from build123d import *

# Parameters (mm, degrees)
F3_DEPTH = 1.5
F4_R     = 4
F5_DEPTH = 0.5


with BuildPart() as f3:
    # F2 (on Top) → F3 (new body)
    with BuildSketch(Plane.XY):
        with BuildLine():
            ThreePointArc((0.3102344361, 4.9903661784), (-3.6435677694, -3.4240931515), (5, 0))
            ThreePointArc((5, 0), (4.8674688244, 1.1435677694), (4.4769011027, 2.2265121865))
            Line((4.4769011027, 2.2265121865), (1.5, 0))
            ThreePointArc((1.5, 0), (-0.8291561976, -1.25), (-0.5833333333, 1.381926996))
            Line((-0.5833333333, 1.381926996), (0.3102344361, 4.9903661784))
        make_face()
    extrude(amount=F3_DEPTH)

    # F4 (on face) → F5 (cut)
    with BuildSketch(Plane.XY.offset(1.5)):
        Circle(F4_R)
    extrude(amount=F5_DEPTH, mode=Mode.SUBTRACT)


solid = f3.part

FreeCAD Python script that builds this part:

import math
import FreeCAD as App
import Part
import Sketcher
from FreeCAD import Vector
Q = App.Units.Quantity

doc = App.newDocument("Part")
body = doc.addObject("PartDesign::Body", "Body")

sketch1 = body.newObject("Sketcher::SketchObject", "Sketch")
sketch1.AttachmentSupport = (doc.getObject("XY_Plane"), [""])
sketch1.MapMode = "FlatFace"
sketch1.addGeometry([
    Part.ArcOfCircle(Part.Circle(Vector(0, 0, 0), Vector(0, 0, 1), 5), math.radians(86), math.radians(360)),
    Part.ArcOfCircle(Part.Circle(Vector(0, 0, 0), Vector(0, 0, 1), 5), math.radians(0), math.radians(26)),
    Part.LineSegment(Vector(4.5, 2.2, 0), Vector(1.5, 0, 0)),
    Part.ArcOfCircle(Part.Circle(Vector(0, 0, 0), Vector(0, 0, 1), 1.5), math.radians(113), math.radians(360)),
    Part.LineSegment(Vector(-0.6, 1.4, 0), Vector(0.3, 5, 0)),
], False)
sketch1.addConstraint([
    Sketcher.Constraint("Tangent", 0, 2, 1, 1),
    Sketcher.Constraint("Coincident", 1, 2, 2, 1),
    Sketcher.Constraint("Coincident", 2, 2, 3, 2),
    Sketcher.Constraint("Coincident", 3, 1, 4, 1),
    Sketcher.Constraint("Coincident", 4, 2, 0, 1),
    Sketcher.Constraint("Coincident", 0, 3, -1, 1),
    Sketcher.Constraint("Coincident", 3, 3, -1, 1),
    Sketcher.Constraint("Equal", 0, 1),
    Sketcher.Constraint("PointOnObject", 0, 2, -1),
    Sketcher.Constraint("PointOnObject", 2, 2, -1),
    Sketcher.Constraint("Equal", 2, 4),
    Sketcher.Constraint("Radius", 0, Q("5 mm")),
    Sketcher.Constraint("Radius", 3, Q("1.5 mm")),
    Sketcher.Constraint("DistanceX", -1, 1, 1, 2, Q("4.476901 mm")),
    Sketcher.Constraint("DistanceY", 3, 1, 4, 2, Q("3.608439 mm")),
])
pad1 = body.newObject("PartDesign::Pad", "Pad")
pad1.Profile = sketch1
pad1.Length = 1.5

sketch2 = body.newObject("Sketcher::SketchObject", "Sketch001")
sketch2.AttachmentSupport = (doc.getObject("XY_Plane"), [""])
sketch2.MapMode = "FlatFace"
sketch2.AttachmentOffset = App.Placement(Vector(0, 0, 1.5), App.Rotation())
sketch2.addGeometry(Part.Circle(Vector(0, 0, 0), Vector(0, 0, 1), 4), False)
sketch2.addConstraint([
    Sketcher.Constraint("Coincident", 0, 3, -1, 1),
    Sketcher.Constraint("Diameter", 0, Q("8 mm")),
])
pocket1 = body.newObject("PartDesign::Pocket", "Pocket")
pocket1.Profile = sketch2
pocket1.Length = 0.5
pocket1.Reversed = True

doc.recompute()
